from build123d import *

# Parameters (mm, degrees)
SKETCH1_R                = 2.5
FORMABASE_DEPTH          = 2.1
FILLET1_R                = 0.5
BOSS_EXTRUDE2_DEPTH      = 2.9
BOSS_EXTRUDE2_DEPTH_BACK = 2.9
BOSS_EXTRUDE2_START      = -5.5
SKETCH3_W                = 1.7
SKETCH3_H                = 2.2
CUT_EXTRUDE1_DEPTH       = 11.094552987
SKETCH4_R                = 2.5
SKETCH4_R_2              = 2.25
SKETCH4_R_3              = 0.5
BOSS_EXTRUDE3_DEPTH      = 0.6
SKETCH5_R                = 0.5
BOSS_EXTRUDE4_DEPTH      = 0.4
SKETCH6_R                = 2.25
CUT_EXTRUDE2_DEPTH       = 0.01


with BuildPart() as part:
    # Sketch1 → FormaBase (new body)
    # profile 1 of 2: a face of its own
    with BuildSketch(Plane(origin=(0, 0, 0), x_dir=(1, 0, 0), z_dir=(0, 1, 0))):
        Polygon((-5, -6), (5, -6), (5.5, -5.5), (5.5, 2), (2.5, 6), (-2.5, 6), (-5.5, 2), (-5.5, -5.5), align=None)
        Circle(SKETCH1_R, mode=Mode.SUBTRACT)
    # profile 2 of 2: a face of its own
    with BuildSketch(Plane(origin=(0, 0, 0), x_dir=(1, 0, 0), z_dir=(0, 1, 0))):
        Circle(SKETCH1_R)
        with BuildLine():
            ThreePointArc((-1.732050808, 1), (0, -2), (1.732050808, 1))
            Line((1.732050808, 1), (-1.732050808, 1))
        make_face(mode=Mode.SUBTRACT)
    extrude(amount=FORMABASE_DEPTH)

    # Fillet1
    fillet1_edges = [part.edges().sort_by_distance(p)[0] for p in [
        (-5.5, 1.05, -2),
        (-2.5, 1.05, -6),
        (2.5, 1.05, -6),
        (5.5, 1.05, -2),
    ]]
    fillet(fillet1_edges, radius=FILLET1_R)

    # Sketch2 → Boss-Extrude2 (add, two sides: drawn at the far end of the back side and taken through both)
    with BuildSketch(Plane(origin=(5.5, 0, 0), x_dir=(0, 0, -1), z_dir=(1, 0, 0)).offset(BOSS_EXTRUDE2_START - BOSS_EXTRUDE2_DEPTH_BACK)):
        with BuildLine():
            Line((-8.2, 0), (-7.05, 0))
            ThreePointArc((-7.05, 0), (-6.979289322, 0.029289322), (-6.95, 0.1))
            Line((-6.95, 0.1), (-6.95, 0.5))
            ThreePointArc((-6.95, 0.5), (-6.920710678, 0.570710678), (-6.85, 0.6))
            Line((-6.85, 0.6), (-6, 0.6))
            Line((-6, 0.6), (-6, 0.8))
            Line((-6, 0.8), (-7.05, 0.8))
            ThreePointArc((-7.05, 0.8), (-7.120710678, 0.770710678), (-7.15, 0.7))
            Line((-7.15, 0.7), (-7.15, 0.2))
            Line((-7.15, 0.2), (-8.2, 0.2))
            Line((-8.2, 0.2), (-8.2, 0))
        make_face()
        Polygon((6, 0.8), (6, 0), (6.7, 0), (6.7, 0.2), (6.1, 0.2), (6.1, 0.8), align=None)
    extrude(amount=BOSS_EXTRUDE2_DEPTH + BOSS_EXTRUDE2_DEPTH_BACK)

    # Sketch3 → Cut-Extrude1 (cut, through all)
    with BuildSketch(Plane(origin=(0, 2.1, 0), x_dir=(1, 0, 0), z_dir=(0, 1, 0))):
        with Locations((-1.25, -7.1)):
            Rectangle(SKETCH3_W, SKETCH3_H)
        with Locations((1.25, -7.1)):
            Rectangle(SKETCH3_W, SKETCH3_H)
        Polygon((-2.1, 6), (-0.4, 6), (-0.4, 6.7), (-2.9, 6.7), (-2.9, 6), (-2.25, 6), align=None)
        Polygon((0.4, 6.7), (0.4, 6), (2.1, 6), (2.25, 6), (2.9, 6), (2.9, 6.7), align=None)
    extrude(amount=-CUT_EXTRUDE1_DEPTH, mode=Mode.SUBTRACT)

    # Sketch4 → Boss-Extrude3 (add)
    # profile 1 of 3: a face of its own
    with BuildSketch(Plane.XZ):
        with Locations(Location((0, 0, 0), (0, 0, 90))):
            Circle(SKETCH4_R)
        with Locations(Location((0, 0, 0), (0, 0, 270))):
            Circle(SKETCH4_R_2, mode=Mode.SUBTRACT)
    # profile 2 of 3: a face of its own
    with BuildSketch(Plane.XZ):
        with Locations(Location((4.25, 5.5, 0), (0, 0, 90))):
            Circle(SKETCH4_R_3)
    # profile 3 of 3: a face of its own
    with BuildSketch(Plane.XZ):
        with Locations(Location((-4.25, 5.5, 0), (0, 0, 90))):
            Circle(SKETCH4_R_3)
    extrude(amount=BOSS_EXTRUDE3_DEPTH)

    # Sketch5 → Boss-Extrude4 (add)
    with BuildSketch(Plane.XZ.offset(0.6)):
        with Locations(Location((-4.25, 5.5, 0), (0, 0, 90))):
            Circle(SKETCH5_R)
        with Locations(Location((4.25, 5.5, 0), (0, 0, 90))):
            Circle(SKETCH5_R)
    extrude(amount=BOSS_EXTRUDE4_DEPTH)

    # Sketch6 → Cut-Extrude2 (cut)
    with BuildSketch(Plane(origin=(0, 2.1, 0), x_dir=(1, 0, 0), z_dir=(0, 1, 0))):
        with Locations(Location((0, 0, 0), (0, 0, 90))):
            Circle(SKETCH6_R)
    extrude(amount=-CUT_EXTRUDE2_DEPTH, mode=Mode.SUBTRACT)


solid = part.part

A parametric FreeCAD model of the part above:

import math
import FreeCAD as App
import Part
import Sketcher

V = App.Vector


def edges_at(feature, points):
    """Names of the edges that pass closest to the given points."""
    edges = feature.Shape.Edges
    near = lambda p: min(range(len(edges)), key=lambda i: edges[i].distToShape(Part.Vertex(*p))[0])
    return sorted({f"Edge{near(p) + 1}" for p in points})

doc = App.newDocument("Part")
body = doc.addObject("PartDesign::Body", "Body")

# Sketch on XZ plane
sketch1 = body.newObject("Sketcher::SketchObject", "Sketch")
sketch1.AttachmentSupport = (doc.getObject("XZ_Plane"), [""])
sketch1.MapMode = "FlatFace"
sketch1.addGeometry(Part.LineSegment(V(-5, 6, 0), V(5, 6, 0)), False)
sketch1.addGeometry(Part.LineSegment(V(5, 6, 0), V(5.5, 5.5, 0)), False)
sketch1.addGeometry(Part.LineSegment(V(5.5, 5.5, 0), V(5.5, -2, 0)), False)
sketch1.addGeometry(Part.LineSegment(V(5.5, -2, 0), V(2.5, -6, 0)), False)
sketch1.addGeometry(Part.LineSegment(V(2.5, -6, 0), V(-2.5, -6, 0)), False)
sketch1.addGeometry(Part.LineSegment(V(-2.5, -6, 0), V(-5.5, -2, 0)), False)
sketch1.addGeometry(Part.LineSegment(V(-5.5, -2, 0), V(-5.5, 5.5, 0)), False)
sketch1.addGeometry(Part.LineSegment(V(-5.5, 5.5, 0), V(-5, 6, 0)), False)
sketch1.addGeometry(Part.LineSegment(V(-1.7, -1, 0), V(1.7, -1, 0)), False)
sketch1.addGeometry(Part.ArcOfCircle(Part.Circle(V(0, 0, 0), V(0, 0, 1), 2), math.radians(-30), math.radians(210)), False)
sketch1.addConstraint(Sketcher.Constraint("Coincident", 0, 2, 1, 1))
sketch1.addConstraint(Sketcher.Constraint("Coincident", 1, 2, 2, 1))
sketch1.addConstraint(Sketcher.Constraint("Coincident", 2, 2, 3, 1))
sketch1.addConstraint(Sketcher.Constraint("Coincident", 3, 2, 4, 1))
sketch1.addConstraint(Sketcher.Constraint("Coincident", 4, 2, 5, 1))
sketch1.addConstraint(Sketcher.Constraint("Coincident", 5, 2, 6, 1))
sketch1.addConstraint(Sketcher.Constraint("Coincident", 6, 2, 7, 1))
sketch1.addConstraint(Sketcher.Constraint("Coincident", 7, 2, 0, 1))
sketch1.addConstraint(Sketcher.Constraint("Coincident", 8, 1, 9, 2))
sketch1.addConstraint(Sketcher.Constraint("Coincident", 9, 1, 8, 2))
sketch1.addConstraint(Sketcher.Constraint("Horizontal", 0))
sketch1.addConstraint(Sketcher.Constraint("Vertical", 2))
sketch1.addConstraint(Sketcher.Constraint("Horizontal", 4))
sketch1.addConstraint(Sketcher.Constraint("Vertical", 6))
sketch1.addConstraint(Sketcher.Constraint("Horizontal", 8))
sketch1.addConstraint(Sketcher.Constraint("Coincident", 9, 3, -1, 1))
sketch1.addConstraint(Sketcher.Constraint("Symmetric", 2, 2, 5, 2, -2))
sketch1.addConstraint(Sketcher.Constraint("Perpendicular", 1, 7))
sketch1.addConstraint(Sketcher.Constraint("Horizontal", 1, 2, 6, 2))
sketch1.addConstraint(Sketcher.Constraint("Equal", 3, 5))
sketch1.addConstraint(Sketcher.Constraint("Equal", 1, 7))
sketch1.addConstraint(Sketcher.Constraint("Radius", 9, 2.0))
sketch1.addConstraint(Sketcher.Constraint("DistanceX", 0, 1, 0, 2, 10.0))
sketch1.addConstraint(Sketcher.Constraint("DistanceX", 4, 2, 4, 1, 5.0))
sketch1.addConstraint(Sketcher.Constraint("Distance", 3, 5.0))
sketch1.addConstraint(Sketcher.Constraint("DistanceY", 2, 2, 2, 1, 7.5))
sketch1.addConstraint(Sketcher.Constraint("DistanceY", -1, 1, 0, 2, 6.0))
sketch1.addConstraint(Sketcher.Constraint("DistanceY", 2, 2, -1, 1, 2.0))
sketch1.addConstraint(Sketcher.Constraint("DistanceY", 8, 1, -1, 1, 1.0))
pad1 = body.newObject("PartDesign::Pad", "Pad")
pad1.Profile = sketch1
pad1.Length = 2.1
pad1.Reversed = True
doc.recompute()

fillet = body.newObject("PartDesign::Fillet", "Fillet")
fillet.Base = (pad1, edges_at(pad1, [
    (-5.5, 1.05, -2),
    (-2.5, 1.05, -6),
    (2.5, 1.05, -6),
    (5.5, 1.05, -2),
]))
fillet.Radius = 0.5

# Sketch on YZ plane
sketch2 = body.newObject("Sketcher::SketchObject", "Sketch001")
sketch2.AttachmentSupport = (doc.getObject("YZ_Plane"), [""])
sketch2.MapMode = "FlatFace"
sketch2.addGeometry(Part.LineSegment(V(0, 8.2, 0), V(0, 7.05, 0)), False)
sketch2.addGeometry(Part.ArcOfCircle(Part.Circle(V(0.1, 7.05, 0), V(0, 0, 1), 0.1), math.radians(180), math.radians(270)), False)
sketch2.addGeometry(Part.LineSegment(V(0.1, 6.95, 0), V(0.5, 6.95, 0)), False)
sketch2.addGeometry(Part.ArcOfCircle(Part.Circle(V(0.5, 6.85, 0), V(0, 0, 1), 0.1), math.radians(0), math.radians(90)), False)
sketch2.addGeometry(Part.LineSegment(V(0.6, 6.85, 0), V(0.6, 6, 0)), False)
sketch2.addGeometry(Part.LineSegment(V(0.6, 6, 0), V(0.8, 6, 0)), False)
sketch2.addGeometry(Part.LineSegment(V(0.8, 6, 0), V(0.8, 7.05, 0)), False)
sketch2.addGeometry(Part.ArcOfCircle(Part.Circle(V(0.7, 7.05, 0), V(0, 0, 1), 0.1), math.radians(0), math.radians(90)), False)
sketch2.addGeometry(Part.LineSegment(V(0.7, 7.15, 0), V(0.2, 7.15, 0)), False)
sketch2.addGeometry(Part.LineSegment(V(0.2, 7.15, 0), V(0.2, 8.2, 0)), False)
sketch2.addGeometry(Part.LineSegment(V(0.2, 8.2, 0), V(0, 8.2, 0)), False)
sketch2.addGeometry(Part.LineSegment(V(0.8, -6, 0), V(0, -6, 0)), False)
sketch2.addGeometry(Part.LineSegment(V(0, -6, 0), V(0, -6.7, 0)), False)
sketch2.addGeometry(Part.LineSegment(V(0, -6.7, 0), V(0.2, -6.7, 0)), False)
sketch2.addGeometry(Part.LineSegment(V(0.2, -6.7, 0), V(0.2, -6.1, 0)), False)
sketch2.addGeometry(Part.LineSegment(V(0.2, -6.1, 0), V(0.8, -6.1, 0)), False)
sketch2.addGeometry(Part.LineSegment(V(0.8, -6.1, 0), V(0.8, -6, 0)), False)
sketch2.addConstraint(Sketcher.Constraint("Tangent", 0, 2, 1, 1))
sketch2.addConstraint(Sketcher.Constraint("Tangent", 1, 2, 2, 1))
sketch2.addConstraint(Sketcher.Constraint("Tangent", 2, 2, 3, 2))
sketch2.addConstraint(Sketcher.Constraint("Tangent", 3, 1, 4, 1))
sketch2.addConstraint(Sketcher.Constraint("Coincident", 4, 2, 5, 1))
sketch2.addConstraint(Sketcher.Constraint("Coincident", 5, 2, 6, 1))
sketch2.addConstraint(Sketcher.Constraint("Tangent", 6, 2, 7, 1))
sketch2.addConstraint(Sketcher.Constraint("Tangent", 7, 2, 8, 1))
sketch2.addConstraint(Sketcher.Constraint("Coincident", 8, 2, 9, 1))
sketch2.addConstraint(Sketcher.Constraint("Coincident", 9, 2, 10, 1))
sketch2.addConstraint(Sketcher.Constraint("Coincident", 10, 2, 0, 1))
sketch2.addConstraint(Sketcher.Constraint("Coincident", 11, 2, 12, 1))
sketch2.addConstraint(Sketcher.Constraint("Coincident", 12, 2, 13, 1))
sketch2.addConstraint(Sketcher.Constraint("Coincident", 13, 2, 14, 1))
sketch2.addConstraint(Sketcher.Constraint("Coincident", 14, 2, 15, 1))
sketch2.addConstraint(Sketcher.Constraint("Coincident", 15, 2, 16, 1))
sketch2.addConstraint(Sketcher.Constraint("Coincident", 16, 2, 11, 1))
sketch2.addConstraint(Sketcher.Constraint("Vertical", 0))
sketch2.addConstraint(Sketcher.Constraint("Horizontal", 2))
sketch2.addConstraint(Sketcher.Constraint("Vertical", 4))
sketch2.addConstraint(Sketcher.Constraint("Horizontal", 5))
sketch2.addConstraint(Sketcher.Constraint("Vertical", 6))
sketch2.addConstraint(Sketcher.Constraint("Horizontal", 8))
sketch2.addConstraint(Sketcher.Constraint("Vertical", 9))
sketch2.addConstraint(Sketcher.Constraint("Horizontal", 10))
sketch2.addConstraint(Sketcher.Constraint("Horizontal", 11))
sketch2.addConstraint(Sketcher.Constraint("Vertical", 12))
sketch2.addConstraint(Sketcher.Constraint("Horizontal", 13))
sketch2.addConstraint(Sketcher.Constraint("Vertical", 14))
sketch2.addConstraint(Sketcher.Constraint("Horizontal", 15))
sketch2.addConstraint(Sketcher.Constraint("Vertical", 16))
sketch2.addConstraint(Sketcher.Constraint("Equal", 1, 3))
sketch2.addConstraint(Sketcher.Constraint("Equal", 3, 7))
sketch2.addConstraint(Sketcher.Constraint("Symmetric", 5, 2, 16, 2, -1))
sketch2.addConstraint(Sketcher.Constraint("PointOnObject", 0, 2, -2))
sketch2.addConstraint(Sketcher.Constraint("PointOnObject", 11, 2, -2))
sketch2.addConstraint(Sketcher.Constraint("Horizontal", 1, 3, 7, 3))
sketch2.addConstraint(Sketcher.Constraint("Vertical", 9, 2, 13, 2))
sketch2.addConstraint(Sketcher.Constraint("Equal", 5, 10))
sketch2.addConstraint(Sketcher.Constraint("Equal", 6, 9))
sketch2.addConstraint(Sketcher.Constraint("Equal", 15, 14))
sketch2.addConstraint(Sketcher.Constraint("Radius", 1, 0.1))
sketch2.addConstraint(Sketcher.Constraint("DistanceX", 2, 1, 2, 2, 0.4))
sketch2.addConstraint(Sketcher.Constraint("DistanceX", 5, 1, 5, 2, 0.2))
sketch2.addConstraint(Sketcher.Constraint("DistanceY", 12, 2, 12, 1, 0.7))
sketch2.addConstraint(Sketcher.Constraint("DistanceY", -1, 1, 4, 2, 6.0))
sketch2.addConstraint(Sketcher.Constraint("DistanceY", 0, 2, 0, 1, 1.15))
pad2 = body.newObject("PartDesign::Pad", "Pad001")
pad2.Profile = sketch2
pad2.Type = "TwoLengths"
pad2.Length = 2.9
pad2.Length2 = 2.9

# Sketch on XZ plane
sketch3 = body.newObject("Sketcher::SketchObject", "Sketch002")
sketch3.AttachmentSupport = (doc.getObject("XZ_Plane"), [""])
sketch3.MapMode = "FlatFace"
sketch3.AttachmentOffset = App.Placement(V(0, 0, -2.1), App.Rotation())
sketch3.addGeometry(Part.LineSegment(V(-2.1, 6, 0), V(-2.1, 8.2, 0)), False)
sketch3.addGeometry(Part.LineSegment(V(-2.1, 8.2, 0), V(-0.4, 8.2, 0)), False)
sketch3.addGeometry(Part.LineSegment(V(-0.4, 8.2, 0), V(-0.4, 6, 0)), False)
sketch3.addGeometry(Part.LineSegment(V(-0.4, 6, 0), V(-2.1, 6, 0)), False)
sketch3.addGeometry(Part.LineSegment(V(0.4, 6, 0), V(0.4, 8.2, 0)), False)
sketch3.addGeometry(Part.LineSegment(V(0.4, 8.2, 0), V(2.1, 8.2, 0)), False)
sketch3.addGeometry(Part.LineSegment(V(2.1, 8.2, 0), V(2.1, 6, 0)), False)
sketch3.addGeometry(Part.LineSegment(V(2.1, 6, 0), V(0.4, 6, 0)), False)
sketch3.addGeometry(Part.LineSegment(V(-0.4, -6, 0), V(-0.4, -6.7, 0)), False)
sketch3.addGeometry(Part.LineSegment(V(-0.4, -6.7, 0), V(-2.9, -6.7, 0)), False)
sketch3.addGeometry(Part.LineSegment(V(-2.9, -6.7, 0), V(-2.9, -6, 0)), False)
sketch3.addGeometry(Part.LineSegment(V(-2.9, -6, 0), V(-0.4, -6, 0)), False)
sketch3.addGeometry(Part.LineSegment(V(0.4, -6.7, 0), V(0.4, -6, 0)), False)
sketch3.addGeometry(Part.LineSegment(V(0.4, -6, 0), V(2.9, -6, 0)), False)
sketch3.addGeometry(Part.LineSegment(V(2.9, -6, 0), V(2.9, -6.7, 0)), False)
sketch3.addGeometry(Part.LineSegment(V(2.9, -6.7, 0), V(0.4, -6.7, 0)), False)
sketch3.addConstraint(Sketcher.Constraint("Coincident", 0, 2, 1, 1))
sketch3.addConstraint(Sketcher.Constraint("Coincident", 1, 2, 2, 1))
sketch3.addConstraint(Sketcher.Constraint("Coincident", 2, 2, 3, 1))
sketch3.addConstraint(Sketcher.Constraint("Coincident", 3, 2, 0, 1))
sketch3.addConstraint(Sketcher.Constraint("Coincident", 4, 2, 5, 1))
sketch3.addConstraint(Sketcher.Constraint("Coincident", 5, 2, 6, 1))
sketch3.addConstraint(Sketcher.Constraint("Coincident", 6, 2, 7, 1))
sketch3.addConstraint(Sketcher.Constraint("Coincident", 7, 2, 4, 1))
sketch3.addConstraint(Sketcher.Constraint("Coincident", 8, 2, 9, 1))
sketch3.addConstraint(Sketcher.Constraint("Coincident", 9, 2, 10, 1))
sketch3.addConstraint(Sketcher.Constraint("Coincident", 10, 2, 11, 1))
sketch3.addConstraint(Sketcher.Constraint("Coincident", 11, 2, 8, 1))
sketch3.addConstraint(Sketcher.Constraint("Coincident", 12, 2, 13, 1))
sketch3.addConstraint(Sketcher.Constraint("Coincident", 13, 2, 14, 1))
sketch3.addConstraint(Sketcher.Constraint("Coincident", 14, 2, 15, 1))
sketch3.addConstraint(Sketcher.Constraint("Coincident", 15, 2, 12, 1))
sketch3.addConstraint(Sketcher.Constraint("Vertical", 0))
sketch3.addConstraint(Sketcher.Constraint("Horizontal", 1))
sketch3.addConstraint(Sketcher.Constraint("Vertical", 2))
sketch3.addConstraint(Sketcher.Constraint("Horizontal", 3))
sketch3.addConstraint(Sketcher.Constraint("Vertical", 4))
sketch3.addConstraint(Sketcher.Constraint("Horizontal", 5))
sketch3.addConstraint(Sketcher.Constraint("Vertical", 6))
sketch3.addConstraint(Sketcher.Constraint("Horizontal", 7))
sketch3.addConstraint(Sketcher.Constraint("Vertical", 8))
sketch3.addConstraint(Sketcher.Constraint("Horizontal", 9))
sketch3.addConstraint(Sketcher.Constraint("Vertical", 10))
sketch3.addConstraint(Sketcher.Constraint("Horizontal", 11))
sketch3.addConstraint(Sketcher.Constraint("Vertical", 12))
sketch3.addConstraint(Sketcher.Constraint("Horizontal", 13))
sketch3.addConstraint(Sketcher.Constraint("Vertical", 14))
sketch3.addConstraint(Sketcher.Constraint("Horizontal", 15))
sketch3.addConstraint(Sketcher.Constraint("Symmetric", 7, 2, 11, 2, -1, 1))
sketch3.addConstraint(Sketcher.Constraint("Symmetric", 2, 2, 12, 2, -1, 1))
sketch3.addConstraint(Sketcher.Constraint("Symmetric", 1, 2, 4, 2, -2))
sketch3.addConstraint(Sketcher.Constraint("Symmetric", 3, 2, 6, 2, -2))
sketch3.addConstraint(Sketcher.Constraint("Symmetric", 9, 2, 14, 2, -2))
sketch3.addConstraint(Sketcher.Constraint("DistanceX", 1, 1, 1, 2, 1.7))
sketch3.addConstraint(Sketcher.Constraint("DistanceX", 9, 2, 9, 1, 2.5))
sketch3.addConstraint(Sketcher.Constraint("DistanceY", 0, 1, 0, 2, 2.2))
sketch3.addConstraint(Sketcher.Constraint("DistanceY", 8, 2, 8, 1, 0.7))
sketch3.addConstraint(Sketcher.Constraint("DistanceY", -1, 1, 2, 2, 6.0))
sketch3.addConstraint(Sketcher.Constraint("DistanceX", 9, 2, 6, 2, 5.0))
pocket1 = body.newObject("PartDesign::Pocket", "Pocket")
pocket1.Profile = sketch3
pocket1.Type = "ThroughAll"
pocket1.Reversed = True

# Sketch on XZ plane
sketch4 = body.newObject("Sketcher::SketchObject", "Sketch003")
sketch4.AttachmentSupport = (doc.getObject("XZ_Plane"), [""])
sketch4.MapMode = "FlatFace"
sketch4.addGeometry(Part.Circle(V(0, 0, 0), V(0, 0, 1), 2.5), False)
sketch4.addGeometry(Part.Circle(V(0, 0, 0), V(0, 0, 1), 2.2), False)
sketch4.addGeometry(Part.Circle(V(4.2, 5.5, 0), V(0, 0, 1), 0.5), False)
sketch4.addGeometry(Part.Circle(V(-4.2, 5.5, 0), V(0, 0, 1), 0.5), False)
sketch4.addConstraint(Sketcher.Constraint("Coincident", 0, 3, -1, 1))
sketch4.addConstraint(Sketcher.Constraint("Coincident", 1, 3, -1, 1))
sketch4.addConstraint(Sketcher.Constraint("Equal", 2, 3))
sketch4.addConstraint(Sketcher.Constraint("Symmetric", 2, 3, 3, 3, -2))
sketch4.addConstraint(Sketcher.Constraint("Diameter", 0, 5.0))
sketch4.addConstraint(Sketcher.Constraint("Diameter", 2, 1.0))
sketch4.addConstraint(Sketcher.Constraint("Diameter", 1, 4.5))
sketch4.addConstraint(Sketcher.Constraint("DistanceY", -1, 1, 2, 3, 5.5))
sketch4.addConstraint(Sketcher.Constraint("DistanceX", 3, 3, 2, 3, 8.5))
pad3 = body.newObject("PartDesign::Pad", "Pad002")
pad3.Profile = sketch4
pad3.Length = 0.6

# Sketch on XZ plane
sketch5 = body.newObject("Sketcher::SketchObject", "Sketch004")
sketch5.AttachmentSupport = (doc.getObject("XZ_Plane"), [""])
sketch5.MapMode = "FlatFace"
sketch5.AttachmentOffset = App.Placement(V(0, 0, 0.6), App.Rotation())
sketch5.addGeometry(Part.Circle(V(-4.2, 5.5, 0), V(0, 0, 1), 0.5), False)
sketch5.addGeometry(Part.Circle(V(4.2, 5.5, 0), V(0, 0, 1), 0.5), False)
sketch5.addConstraint(Sketcher.Constraint("Equal", 0, 1))
sketch5.addConstraint(Sketcher.Constraint("Symmetric", 0, 3, 1, 3, -2))
sketch5.addConstraint(Sketcher.Constraint("Diameter", 0, 1.0))
sketch5.addConstraint(Sketcher.Constraint("DistanceY", -1, 1, 0, 3, 5.5))
sketch5.addConstraint(Sketcher.Constraint("DistanceX", 0, 3, 1, 3, 8.5))
pad4 = body.newObject("PartDesign::Pad", "Pad003")
pad4.Profile = sketch5
pad4.Length = 0.4

# Sketch on XZ plane
sketch6 = body.newObject("Sketcher::SketchObject", "Sketch005")
sketch6.AttachmentSupport = (doc.getObject("XZ_Plane"), [""])
sketch6.MapMode = "FlatFace"
sketch6.AttachmentOffset = App.Placement(V(0, 0, -2.1), App.Rotation())
sketch6.addGeometry(Part.Circle(V(0, 0, 0), V(0, 0, 1), 2.2), False)
sketch6.addConstraint(Sketcher.Constraint("Coincident", 0, 3, -1, 1))
sketch6.addConstraint(Sketcher.Constraint("Diameter", 0, 4.5))
pocket2 = body.newObject("PartDesign::Pocket", "Pocket001")
pocket2.Profile = sketch6
pocket2.Length = 0.01
pocket2.Reversed = True

doc.recompute()
